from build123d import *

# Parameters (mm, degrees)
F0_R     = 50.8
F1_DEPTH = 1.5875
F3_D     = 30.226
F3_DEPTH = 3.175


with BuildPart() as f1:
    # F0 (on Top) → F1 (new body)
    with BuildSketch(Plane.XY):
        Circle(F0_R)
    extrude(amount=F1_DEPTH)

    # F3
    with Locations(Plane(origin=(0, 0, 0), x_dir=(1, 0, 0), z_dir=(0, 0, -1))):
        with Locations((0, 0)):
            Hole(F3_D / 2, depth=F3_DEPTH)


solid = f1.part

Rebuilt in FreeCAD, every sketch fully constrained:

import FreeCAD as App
import Part
import Sketcher
Q = App.Units.Quantity

doc = App.newDocument("Part")
body = doc.addObject("PartDesign::Body", "Body")

# Sketch on XY plane
sketch1 = doc.addObject("Sketcher::SketchObject", "Sketch")
body.addObject(sketch1)
sketch1.AttachmentSupport = (doc.XY_Plane, [""])
sketch1.MapMode = "FlatFace"
sketch1.addGeometry(Part.Circle(App.Vector(0, 0, 0), App.Vector(0, 0, 1), 51), False)
sketch1.addConstraint([
    Sketcher.Constraint("Coincident", 0, 3, -1, 1),
    Sketcher.Constraint("Diameter", 0, Q("4 in")),
])
pad1 = doc.addObject("PartDesign::Pad", "Pad")
body.addObject(pad1)
pad1.Profile = sketch1
pad1.Length = Q("0.0625 in")

# Sketch on XY plane
sketch2 = doc.addObject("Sketcher::SketchObject", "Sketch001")
body.addObject(sketch2)
sketch2.AttachmentSupport = (doc.XY_Plane, [""])
sketch2.MapMode = "FlatFace"
sketch2.addGeometry(Part.Circle(App.Vector(0, 0, 0), App.Vector(0, 0, 1), 15), False)
sketch2.addConstraint([
    Sketcher.Constraint("Coincident", 0, 3, -1, 1),
    Sketcher.Constraint("Diameter", 0, Q("1.19 in")),
])
doc.recompute()
hole = doc.addObject("PartDesign::Hole", "Hole")
body.addObject(hole)
hole.Profile = sketch2
hole.ThreadType = "None"
hole.Diameter = Q("1.19 in")
hole.DepthType = "Dimension"
hole.Depth = Q("0.125 in")
hole.DrillPoint = "Flat"
hole.Reversed = True

doc.recompute()
